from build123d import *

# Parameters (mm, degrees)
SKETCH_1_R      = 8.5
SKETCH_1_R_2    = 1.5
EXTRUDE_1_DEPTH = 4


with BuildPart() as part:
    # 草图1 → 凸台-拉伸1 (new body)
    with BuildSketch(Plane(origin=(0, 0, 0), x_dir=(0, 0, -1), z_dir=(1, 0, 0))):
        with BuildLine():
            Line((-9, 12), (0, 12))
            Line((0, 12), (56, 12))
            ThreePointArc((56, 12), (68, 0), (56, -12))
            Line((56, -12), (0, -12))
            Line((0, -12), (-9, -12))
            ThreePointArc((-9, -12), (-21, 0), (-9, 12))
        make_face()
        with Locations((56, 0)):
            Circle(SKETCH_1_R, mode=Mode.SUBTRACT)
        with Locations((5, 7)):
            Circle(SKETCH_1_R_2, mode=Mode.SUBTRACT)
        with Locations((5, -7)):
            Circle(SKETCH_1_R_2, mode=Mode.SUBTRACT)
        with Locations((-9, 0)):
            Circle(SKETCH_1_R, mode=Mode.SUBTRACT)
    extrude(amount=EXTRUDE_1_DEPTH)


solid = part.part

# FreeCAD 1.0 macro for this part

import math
import FreeCAD as App
import Part
import Sketcher

doc = App.newDocument("Part")
body = doc.addObject("PartDesign::Body", "Body")

sketch1 = doc.addObject("Sketcher::SketchObject", "Sketch")
body.addObject(sketch1)
sketch1.AttachmentSupport = (doc.YZ_Plane, [""])
sketch1.MapMode = "FlatFace"
sketch1.addGeometry([
    Part.LineSegment(App.Vector(12, -56, 0), App.Vector(12, 9, 0)),
    Part.ArcOfCircle(Part.Circle(App.Vector(0, 9, 0), App.Vector(0, 0, 1), 12), math.radians(0), math.radians(180)),
    Part.LineSegment(App.Vector(-12, 9, 0), App.Vector(-12, -56, 0)),
    Part.ArcOfCircle(Part.Circle(App.Vector(0, -56, 0), App.Vector(0, 0, 1), 12), math.radians(180), math.radians(360)),
    Part.Circle(App.Vector(-7, -5, 0), App.Vector(0, 0, 1), 1.5),
    Part.Circle(App.Vector(0, -56, 0), App.Vector(0, 0, 1), 8.5),
    Part.Circle(App.Vector(0, 9, 0), App.Vector(0, 0, 1), 8.5),
    Part.Circle(App.Vector(7, -5, 0), App.Vector(0, 0, 1), 1.5),
], False)
sketch1.addConstraint([
    Sketcher.Constraint("Tangent", 0, 2, 1, 1),
    Sketcher.Constraint("Tangent", 1, 2, 2, 1),
    Sketcher.Constraint("Tangent", 2, 2, 3, 1),
    Sketcher.Constraint("Tangent", 3, 2, 0, 1),
    Sketcher.Constraint("Vertical", 0),
    Sketcher.Constraint("Vertical", 2),
    Sketcher.Constraint("Coincident", 5, 3, 3, 3),
    Sketcher.Constraint("Coincident", 6, 3, 1, 3),
    Sketcher.Constraint("Equal", 5, 6),
    Sketcher.Constraint("Equal", 4, 7),
    Sketcher.Constraint("Symmetric", 4, 3, 7, 3, -2),
    Sketcher.Constraint("PointOnObject", 1, 3, -2),
    Sketcher.Constraint("Diameter", 4, 3.0),
    Sketcher.Constraint("Diameter", 5, 17.0),
    Sketcher.Constraint("Radius", 1, 12.0),
    Sketcher.Constraint("DistanceY", 0, 1, 0, 2, 65.0),
    Sketcher.Constraint("DistanceY", -1, 1, 1, 3, 9.0),
    Sketcher.Constraint("DistanceX", 4, 3, -1, 1, 7.0),
    Sketcher.Constraint("DistanceY", 4, 3, -1, 1, 5.0),
])
pad1 = doc.addObject("PartDesign::Pad", "Pad")
body.addObject(pad1)
pad1.Profile = sketch1
pad1.Length = 4

doc.recompute()
